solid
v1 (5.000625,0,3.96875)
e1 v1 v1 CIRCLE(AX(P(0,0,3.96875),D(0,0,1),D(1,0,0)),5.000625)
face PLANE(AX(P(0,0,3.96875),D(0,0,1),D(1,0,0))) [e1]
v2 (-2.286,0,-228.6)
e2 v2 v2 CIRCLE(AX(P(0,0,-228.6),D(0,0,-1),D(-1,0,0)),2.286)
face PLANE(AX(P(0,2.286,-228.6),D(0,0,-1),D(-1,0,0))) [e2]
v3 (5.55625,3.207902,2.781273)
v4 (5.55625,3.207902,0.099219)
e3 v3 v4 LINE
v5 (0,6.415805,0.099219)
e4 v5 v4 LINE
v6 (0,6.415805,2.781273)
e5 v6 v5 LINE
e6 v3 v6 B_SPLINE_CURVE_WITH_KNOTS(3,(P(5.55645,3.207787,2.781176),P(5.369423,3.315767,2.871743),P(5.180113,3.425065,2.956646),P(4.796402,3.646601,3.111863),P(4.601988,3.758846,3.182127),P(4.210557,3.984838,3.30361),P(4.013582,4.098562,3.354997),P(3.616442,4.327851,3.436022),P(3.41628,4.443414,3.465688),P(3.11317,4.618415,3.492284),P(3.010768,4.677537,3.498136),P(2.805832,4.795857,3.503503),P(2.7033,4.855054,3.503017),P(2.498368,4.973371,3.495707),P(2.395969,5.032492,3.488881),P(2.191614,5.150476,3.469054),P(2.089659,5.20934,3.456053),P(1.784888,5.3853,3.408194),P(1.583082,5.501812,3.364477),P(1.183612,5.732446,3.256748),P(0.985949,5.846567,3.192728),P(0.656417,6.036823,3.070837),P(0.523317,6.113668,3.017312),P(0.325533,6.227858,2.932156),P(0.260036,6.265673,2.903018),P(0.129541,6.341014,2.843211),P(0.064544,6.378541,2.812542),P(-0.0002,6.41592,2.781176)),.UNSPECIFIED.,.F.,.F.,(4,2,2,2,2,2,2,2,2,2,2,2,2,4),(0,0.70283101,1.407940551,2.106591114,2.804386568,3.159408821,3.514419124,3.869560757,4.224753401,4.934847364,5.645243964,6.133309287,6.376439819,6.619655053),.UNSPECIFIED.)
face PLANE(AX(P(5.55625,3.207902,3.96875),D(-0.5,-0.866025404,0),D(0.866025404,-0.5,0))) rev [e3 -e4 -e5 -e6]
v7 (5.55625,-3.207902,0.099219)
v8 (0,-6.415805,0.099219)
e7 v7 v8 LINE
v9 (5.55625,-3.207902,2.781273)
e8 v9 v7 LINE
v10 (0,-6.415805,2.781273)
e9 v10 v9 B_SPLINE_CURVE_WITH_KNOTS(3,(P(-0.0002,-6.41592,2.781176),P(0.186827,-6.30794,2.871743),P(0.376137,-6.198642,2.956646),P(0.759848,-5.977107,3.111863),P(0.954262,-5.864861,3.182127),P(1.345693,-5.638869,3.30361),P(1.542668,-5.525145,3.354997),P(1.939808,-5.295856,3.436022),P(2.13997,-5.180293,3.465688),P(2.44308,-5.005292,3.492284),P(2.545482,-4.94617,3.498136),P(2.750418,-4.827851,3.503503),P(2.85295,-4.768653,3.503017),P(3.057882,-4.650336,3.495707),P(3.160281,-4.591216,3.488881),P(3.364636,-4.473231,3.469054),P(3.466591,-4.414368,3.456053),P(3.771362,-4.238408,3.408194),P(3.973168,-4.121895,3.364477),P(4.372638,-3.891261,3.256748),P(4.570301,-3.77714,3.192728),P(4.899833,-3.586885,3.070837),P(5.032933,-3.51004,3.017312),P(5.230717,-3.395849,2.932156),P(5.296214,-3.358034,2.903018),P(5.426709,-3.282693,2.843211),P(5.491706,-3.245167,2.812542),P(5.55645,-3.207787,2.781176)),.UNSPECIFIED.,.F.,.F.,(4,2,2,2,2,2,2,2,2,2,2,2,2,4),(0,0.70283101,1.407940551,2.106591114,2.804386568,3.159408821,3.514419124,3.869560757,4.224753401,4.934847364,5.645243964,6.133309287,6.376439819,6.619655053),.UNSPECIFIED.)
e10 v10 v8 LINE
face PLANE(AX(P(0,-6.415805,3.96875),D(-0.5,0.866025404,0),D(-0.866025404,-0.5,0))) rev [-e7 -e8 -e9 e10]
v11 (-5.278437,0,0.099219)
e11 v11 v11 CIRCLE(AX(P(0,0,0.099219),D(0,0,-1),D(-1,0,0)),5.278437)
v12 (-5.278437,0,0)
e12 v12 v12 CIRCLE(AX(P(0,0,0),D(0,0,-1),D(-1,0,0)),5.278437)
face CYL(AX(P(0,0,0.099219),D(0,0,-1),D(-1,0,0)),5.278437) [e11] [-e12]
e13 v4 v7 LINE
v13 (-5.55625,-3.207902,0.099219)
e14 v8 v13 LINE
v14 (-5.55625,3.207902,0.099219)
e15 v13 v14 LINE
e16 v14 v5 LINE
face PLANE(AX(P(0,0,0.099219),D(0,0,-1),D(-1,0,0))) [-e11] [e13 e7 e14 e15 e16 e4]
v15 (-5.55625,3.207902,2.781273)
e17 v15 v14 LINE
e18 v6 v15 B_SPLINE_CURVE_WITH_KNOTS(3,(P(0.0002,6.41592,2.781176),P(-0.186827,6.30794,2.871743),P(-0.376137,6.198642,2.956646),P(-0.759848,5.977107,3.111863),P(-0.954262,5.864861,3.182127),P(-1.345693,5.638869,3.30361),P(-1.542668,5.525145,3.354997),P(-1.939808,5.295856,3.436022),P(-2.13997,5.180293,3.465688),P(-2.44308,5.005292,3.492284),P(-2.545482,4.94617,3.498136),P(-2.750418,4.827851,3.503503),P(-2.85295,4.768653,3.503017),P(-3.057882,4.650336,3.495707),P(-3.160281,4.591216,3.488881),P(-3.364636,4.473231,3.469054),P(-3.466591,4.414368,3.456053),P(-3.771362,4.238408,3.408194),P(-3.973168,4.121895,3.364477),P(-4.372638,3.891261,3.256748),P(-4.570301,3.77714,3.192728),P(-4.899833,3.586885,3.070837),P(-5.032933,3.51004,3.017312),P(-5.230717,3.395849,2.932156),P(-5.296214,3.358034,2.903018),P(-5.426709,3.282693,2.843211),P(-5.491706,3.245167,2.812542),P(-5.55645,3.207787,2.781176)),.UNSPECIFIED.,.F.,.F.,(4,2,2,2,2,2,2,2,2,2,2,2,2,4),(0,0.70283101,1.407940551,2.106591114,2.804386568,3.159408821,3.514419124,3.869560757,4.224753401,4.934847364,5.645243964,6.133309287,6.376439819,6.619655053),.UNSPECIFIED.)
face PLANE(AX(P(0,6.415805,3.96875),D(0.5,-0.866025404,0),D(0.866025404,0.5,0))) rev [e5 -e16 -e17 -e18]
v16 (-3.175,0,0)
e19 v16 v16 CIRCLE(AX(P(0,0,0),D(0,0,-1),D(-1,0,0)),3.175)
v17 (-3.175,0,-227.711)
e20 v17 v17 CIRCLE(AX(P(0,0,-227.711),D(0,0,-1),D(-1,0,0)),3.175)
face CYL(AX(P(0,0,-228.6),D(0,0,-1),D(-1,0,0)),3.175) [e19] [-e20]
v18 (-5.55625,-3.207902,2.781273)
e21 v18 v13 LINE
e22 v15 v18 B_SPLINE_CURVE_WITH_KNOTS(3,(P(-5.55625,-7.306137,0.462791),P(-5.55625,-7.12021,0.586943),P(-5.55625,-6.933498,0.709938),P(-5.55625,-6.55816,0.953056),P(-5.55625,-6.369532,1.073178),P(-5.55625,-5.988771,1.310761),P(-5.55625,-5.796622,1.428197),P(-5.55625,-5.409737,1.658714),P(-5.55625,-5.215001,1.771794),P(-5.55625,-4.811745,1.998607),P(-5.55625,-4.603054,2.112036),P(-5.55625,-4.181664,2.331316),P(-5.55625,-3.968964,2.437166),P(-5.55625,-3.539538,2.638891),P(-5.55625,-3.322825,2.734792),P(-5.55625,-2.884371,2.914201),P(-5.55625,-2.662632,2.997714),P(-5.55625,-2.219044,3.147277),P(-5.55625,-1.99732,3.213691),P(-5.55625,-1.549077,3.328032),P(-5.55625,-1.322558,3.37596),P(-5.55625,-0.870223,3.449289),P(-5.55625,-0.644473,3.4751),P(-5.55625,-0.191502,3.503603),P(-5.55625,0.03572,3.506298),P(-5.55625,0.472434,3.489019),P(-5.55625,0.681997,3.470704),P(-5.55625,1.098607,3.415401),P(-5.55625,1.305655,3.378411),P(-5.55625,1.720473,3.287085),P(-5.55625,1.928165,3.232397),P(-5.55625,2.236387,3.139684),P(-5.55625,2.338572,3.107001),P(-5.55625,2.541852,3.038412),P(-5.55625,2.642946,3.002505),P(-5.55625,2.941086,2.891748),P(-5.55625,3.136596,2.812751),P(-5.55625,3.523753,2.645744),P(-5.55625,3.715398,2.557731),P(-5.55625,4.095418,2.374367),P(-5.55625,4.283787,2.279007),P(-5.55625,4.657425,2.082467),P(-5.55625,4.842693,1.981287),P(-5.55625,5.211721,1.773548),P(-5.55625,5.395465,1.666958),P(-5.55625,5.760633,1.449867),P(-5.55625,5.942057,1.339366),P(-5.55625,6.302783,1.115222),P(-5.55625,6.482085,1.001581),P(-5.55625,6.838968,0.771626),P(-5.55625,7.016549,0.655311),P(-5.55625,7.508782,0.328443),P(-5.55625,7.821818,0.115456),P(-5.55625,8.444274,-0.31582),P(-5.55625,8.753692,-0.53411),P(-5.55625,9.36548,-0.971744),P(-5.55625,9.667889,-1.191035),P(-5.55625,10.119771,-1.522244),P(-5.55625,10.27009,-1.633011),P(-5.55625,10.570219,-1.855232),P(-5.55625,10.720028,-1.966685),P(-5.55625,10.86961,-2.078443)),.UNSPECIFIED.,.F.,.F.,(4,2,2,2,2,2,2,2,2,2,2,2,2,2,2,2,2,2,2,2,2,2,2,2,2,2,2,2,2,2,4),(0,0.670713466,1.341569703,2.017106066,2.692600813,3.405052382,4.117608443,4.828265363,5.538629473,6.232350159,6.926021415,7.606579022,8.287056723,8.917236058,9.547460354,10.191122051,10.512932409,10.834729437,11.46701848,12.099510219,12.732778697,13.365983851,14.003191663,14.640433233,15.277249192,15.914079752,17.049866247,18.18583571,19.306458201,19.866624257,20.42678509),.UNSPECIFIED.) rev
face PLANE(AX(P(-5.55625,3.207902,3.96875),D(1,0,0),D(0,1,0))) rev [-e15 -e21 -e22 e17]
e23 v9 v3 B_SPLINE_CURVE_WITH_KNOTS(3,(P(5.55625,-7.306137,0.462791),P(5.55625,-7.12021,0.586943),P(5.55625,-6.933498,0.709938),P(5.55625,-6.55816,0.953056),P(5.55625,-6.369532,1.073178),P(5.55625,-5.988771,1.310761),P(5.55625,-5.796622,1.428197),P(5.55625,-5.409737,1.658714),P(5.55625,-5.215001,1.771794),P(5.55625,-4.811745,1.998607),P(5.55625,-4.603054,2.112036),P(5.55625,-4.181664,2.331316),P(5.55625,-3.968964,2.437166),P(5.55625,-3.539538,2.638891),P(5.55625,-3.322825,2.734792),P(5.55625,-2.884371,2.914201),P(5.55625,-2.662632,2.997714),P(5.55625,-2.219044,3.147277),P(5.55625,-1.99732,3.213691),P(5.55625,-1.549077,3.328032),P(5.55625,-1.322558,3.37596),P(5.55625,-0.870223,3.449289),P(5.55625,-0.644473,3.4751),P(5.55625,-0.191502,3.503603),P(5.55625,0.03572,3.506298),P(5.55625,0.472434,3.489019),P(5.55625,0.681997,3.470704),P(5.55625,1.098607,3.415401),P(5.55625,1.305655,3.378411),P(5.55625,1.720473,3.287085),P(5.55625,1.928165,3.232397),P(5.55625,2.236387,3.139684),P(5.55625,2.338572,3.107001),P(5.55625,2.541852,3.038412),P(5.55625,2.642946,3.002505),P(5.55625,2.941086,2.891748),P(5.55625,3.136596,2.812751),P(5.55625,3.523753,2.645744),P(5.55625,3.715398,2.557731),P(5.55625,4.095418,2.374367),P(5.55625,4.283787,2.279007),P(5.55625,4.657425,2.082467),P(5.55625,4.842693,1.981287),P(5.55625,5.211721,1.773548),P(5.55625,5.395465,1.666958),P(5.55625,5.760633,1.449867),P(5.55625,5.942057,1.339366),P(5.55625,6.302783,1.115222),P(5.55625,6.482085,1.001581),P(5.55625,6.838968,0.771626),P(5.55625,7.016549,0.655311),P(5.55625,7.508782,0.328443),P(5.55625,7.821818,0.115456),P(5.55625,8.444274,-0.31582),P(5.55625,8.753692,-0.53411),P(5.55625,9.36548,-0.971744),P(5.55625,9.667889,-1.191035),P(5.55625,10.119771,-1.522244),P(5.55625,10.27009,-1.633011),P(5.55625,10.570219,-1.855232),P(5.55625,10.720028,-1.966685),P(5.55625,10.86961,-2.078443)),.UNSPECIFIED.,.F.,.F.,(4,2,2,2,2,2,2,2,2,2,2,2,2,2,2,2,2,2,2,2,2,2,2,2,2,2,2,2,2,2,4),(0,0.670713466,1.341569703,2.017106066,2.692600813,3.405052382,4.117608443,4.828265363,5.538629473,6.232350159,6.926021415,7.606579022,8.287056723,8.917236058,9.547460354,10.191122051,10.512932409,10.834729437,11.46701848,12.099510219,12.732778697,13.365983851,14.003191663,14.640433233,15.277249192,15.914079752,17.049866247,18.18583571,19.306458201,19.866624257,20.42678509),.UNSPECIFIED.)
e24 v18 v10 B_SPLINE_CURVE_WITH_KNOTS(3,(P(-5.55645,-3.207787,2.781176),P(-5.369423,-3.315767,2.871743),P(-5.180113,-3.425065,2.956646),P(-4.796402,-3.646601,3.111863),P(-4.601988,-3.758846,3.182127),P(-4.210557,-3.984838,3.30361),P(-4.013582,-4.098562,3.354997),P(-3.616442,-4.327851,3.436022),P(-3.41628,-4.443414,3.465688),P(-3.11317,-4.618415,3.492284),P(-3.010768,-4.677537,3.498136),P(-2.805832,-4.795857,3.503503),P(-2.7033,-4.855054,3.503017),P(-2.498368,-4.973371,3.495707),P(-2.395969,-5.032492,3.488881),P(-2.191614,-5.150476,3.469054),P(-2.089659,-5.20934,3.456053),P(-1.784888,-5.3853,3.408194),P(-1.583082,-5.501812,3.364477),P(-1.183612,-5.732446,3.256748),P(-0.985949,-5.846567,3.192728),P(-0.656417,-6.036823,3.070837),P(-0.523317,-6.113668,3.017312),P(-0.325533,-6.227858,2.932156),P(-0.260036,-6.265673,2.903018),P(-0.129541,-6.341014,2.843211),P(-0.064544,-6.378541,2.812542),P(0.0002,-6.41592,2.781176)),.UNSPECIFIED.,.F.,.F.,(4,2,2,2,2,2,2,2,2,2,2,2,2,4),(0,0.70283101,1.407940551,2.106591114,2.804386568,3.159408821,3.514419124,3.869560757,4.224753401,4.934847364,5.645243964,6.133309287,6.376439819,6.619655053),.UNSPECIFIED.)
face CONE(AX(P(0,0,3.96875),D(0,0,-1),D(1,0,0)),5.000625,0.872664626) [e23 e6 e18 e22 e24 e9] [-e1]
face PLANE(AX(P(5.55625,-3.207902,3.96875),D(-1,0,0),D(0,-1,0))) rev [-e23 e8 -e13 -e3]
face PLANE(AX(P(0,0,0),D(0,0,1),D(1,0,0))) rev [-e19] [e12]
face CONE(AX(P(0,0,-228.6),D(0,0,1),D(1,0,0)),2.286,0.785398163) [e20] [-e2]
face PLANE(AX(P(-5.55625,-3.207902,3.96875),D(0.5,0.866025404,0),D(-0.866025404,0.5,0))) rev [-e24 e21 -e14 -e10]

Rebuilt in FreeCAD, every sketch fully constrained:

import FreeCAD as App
import Part
import Sketcher

V = App.Vector
Q = App.Units.Quantity


def faces_at(feature, points):
    """Names of the faces that lie closest to the given points."""
    faces = feature.Shape.Faces
    near = lambda p: min(range(len(faces)), key=lambda i: faces[i].distToShape(Part.Vertex(*p))[0])
    return sorted({f"Face{near(p) + 1}" for p in points})

doc = App.newDocument("Part")
body = doc.addObject("PartDesign::Body", "Body")

sketch1 = body.newObject("Sketcher::SketchObject", "Sketch")
sketch1.AttachmentSupport = (doc.getObject("YZ_Plane"), [""])
sketch1.MapMode = "FlatFace"
sketch1.addGeometry(Part.LineSegment(V(0, 0, 0), V(0, -228.6, 0)), False)
sketch1.addGeometry(Part.LineSegment(V(0, -228.6, 0), V(2.286, -228.6, 0)), False)
sketch1.addGeometry(Part.LineSegment(V(2.286, -228.6, 0), V(3.175, -227.711, 0)), False)
sketch1.addGeometry(Part.LineSegment(V(3.175, -227.711, 0), V(3.175, 0, 0)), False)
sketch1.addGeometry(Part.LineSegment(V(3.175, 0, 0), V(0, 0, 0)), False)
sketch1.addConstraint(Sketcher.Constraint("Coincident", 0, 2, 1, 1))
sketch1.addConstraint(Sketcher.Constraint("Coincident", 1, 2, 2, 1))
sketch1.addConstraint(Sketcher.Constraint("Coincident", 2, 2, 3, 1))
sketch1.addConstraint(Sketcher.Constraint("Coincident", 3, 2, 4, 1))
sketch1.addConstraint(Sketcher.Constraint("Coincident", 4, 2, 0, 1))
sketch1.addConstraint(Sketcher.Constraint("Vertical", 0))
sketch1.addConstraint(Sketcher.Constraint("Horizontal", 1))
sketch1.addConstraint(Sketcher.Constraint("Vertical", 3))
sketch1.addConstraint(Sketcher.Constraint("Horizontal", 4))
sketch1.addConstraint(Sketcher.Constraint("Coincident", 4, 2, -1, 1))
sketch1.addConstraint(Sketcher.Constraint("DistanceY", 0, 2, 0, 1, Q("9 in")))
sketch1.addConstraint(Sketcher.Constraint("Angle", 2, Q("45 deg")))
sketch1.addConstraint(Sketcher.Constraint("DistanceX", 1, 1, 1, 2, Q("0.09 in")))
sketch1.addConstraint(Sketcher.Constraint("DistanceX", 4, 2, 4, 1, Q("0.125 in")))
revolution = body.newObject("PartDesign::Revolution", "Revolution")
revolution.Profile = sketch1
revolution.ReferenceAxis = (sketch1, ["V_Axis"])
revolution.Angle = 360

sketch2 = body.newObject("Sketcher::SketchObject", "Sketch001")
sketch2.AttachmentSupport = (doc.getObject("XY_Plane"), [""])
sketch2.MapMode = "FlatFace"
sketch2.addGeometry(Part.LineSegment(V(0, 6.415805, 0), V(-5.55625, 3.207902, 0)), False)
sketch2.addGeometry(Part.LineSegment(V(-5.55625, 3.207902, 0), V(-5.55625, -3.207902, 0)), False)
sketch2.addGeometry(Part.LineSegment(V(-5.55625, -3.207902, 0), V(0, -6.415805, 0)), False)
sketch2.addGeometry(Part.LineSegment(V(0, -6.415805, 0), V(5.55625, -3.207902, 0)), False)
sketch2.addGeometry(Part.LineSegment(V(5.55625, -3.207902, 0), V(5.55625, 3.207902, 0)), False)
sketch2.addGeometry(Part.LineSegment(V(5.55625, 3.207902, 0), V(0, 6.415805, 0)), False)
sketch2.addConstraint(Sketcher.Constraint("Coincident", 0, 2, 1, 1))
sketch2.addConstraint(Sketcher.Constraint("Coincident", 1, 2, 2, 1))
sketch2.addConstraint(Sketcher.Constraint("Coincident", 2, 2, 3, 1))
sketch2.addConstraint(Sketcher.Constraint("Coincident", 3, 2, 4, 1))
sketch2.addConstraint(Sketcher.Constraint("Coincident", 4, 2, 5, 1))
sketch2.addConstraint(Sketcher.Constraint("Coincident", 5, 2, 0, 1))
sketch2.addConstraint(Sketcher.Constraint("Vertical", 1))
sketch2.addConstraint(Sketcher.Constraint("Vertical", 4))
sketch2.addConstraint(Sketcher.Constraint("Symmetric", 0, 2, 3, 2, -1, 1))
sketch2.addConstraint(Sketcher.Constraint("Symmetric", 2, 2, 5, 2, -1, 1))
sketch2.addConstraint(Sketcher.Constraint("PointOnObject", 2, 2, -2))
sketch2.addConstraint(Sketcher.Constraint("Parallel", 2, 5))
sketch2.addConstraint(Sketcher.Constraint("Horizontal", 1, 2, 3, 2))
sketch2.addConstraint(Sketcher.Constraint("Angle", 0, Q("-150 deg")))
sketch2.addConstraint(Sketcher.Constraint("DistanceX", 0, 2, -1, 1, Q("0.21875 in")))
sketch2.addConstraint(Sketcher.Constraint("DistanceY", 1, 2, 1, 1, 6.415805))
pad1 = body.newObject("PartDesign::Pad", "Pad")
pad1.Profile = sketch2
pad1.Length = Q("0.15625 in")
body2 = doc.addObject("PartDesign::Body", "Body001")

sketch3 = body2.newObject("Sketcher::SketchObject", "Sketch002")
sketch3.AttachmentSupport = (doc.getObject("XY_Plane001"), [""])
sketch3.MapMode = "FlatFace"
sketch3.AttachmentOffset = App.Placement(V(0, 0, 0.15625 * 25.4), App.Rotation())
sketch3.addGeometry(Part.LineSegment(V(-308.416, 309.276, 0), V(-308.416, -309.276, 0)), False)
sketch3.addGeometry(Part.LineSegment(V(-308.416, -309.276, 0), V(308.416, -309.276, 0)), False)
sketch3.addGeometry(Part.LineSegment(V(308.416, -309.276, 0), V(308.416, 309.276, 0)), False)
sketch3.addGeometry(Part.LineSegment(V(308.416, 309.276, 0), V(-308.416, 309.276, 0)), False)
sketch3.addGeometry(Part.Circle(V(0, 0, 0), V(0, 0, 1), 5.000625), False)
sketch3.addConstraint(Sketcher.Constraint("Coincident", 0, 2, 1, 1))
sketch3.addConstraint(Sketcher.Constraint("Coincident", 1, 2, 2, 1))
sketch3.addConstraint(Sketcher.Constraint("Coincident", 2, 2, 3, 1))
sketch3.addConstraint(Sketcher.Constraint("Coincident", 3, 2, 0, 1))
sketch3.addConstraint(Sketcher.Constraint("Vertical", 0))
sketch3.addConstraint(Sketcher.Constraint("Horizontal", 1))
sketch3.addConstraint(Sketcher.Constraint("Vertical", 2))
sketch3.addConstraint(Sketcher.Constraint("Horizontal", 3))
sketch3.addConstraint(Sketcher.Constraint("Coincident", 4, 3, -1, 1))
sketch3.addConstraint(Sketcher.Constraint("Symmetric", 0, 2, 2, 2, -1, 1))
sketch3.addConstraint(Sketcher.Constraint("Diameter", 4, 10.00125))
sketch3.addConstraint(Sketcher.Constraint("DistanceX", 1, 1, 1, 2, 616.832))
sketch3.addConstraint(Sketcher.Constraint("DistanceY", 0, 2, 0, 1, 618.552))
pad2 = body2.newObject("PartDesign::Pad", "Pad001")
pad2.Profile = sketch3
pad2.Length = 233.723566
pad2.Reversed = True
doc.recompute()

datumplane = body2.newObject("PartDesign::Plane", "DatumPlane")
datumplane.AttachmentSupport = (doc.getObject("XY_Plane001"), [""])
datumplane.MapMode = "FlatFace"
datumplane.AttachmentOffset = App.Placement(V(0, 0, 0.15625 * 25.4), App.Rotation())
draft = body2.newObject("PartDesign::Draft", "Draft")
draft.Base = (pad2, faces_at(pad2, [
    (0, -309.276, -112.893),
    (308.416, 0, -112.893),
    (0, 309.276, -112.893),
    (-308.416, 0, -112.893),
    (-5.001, 0, -112.893),
]))
draft.NeutralPlane = (datumplane, [""])
draft.Angle = 50
draft.Reversed = True
doc.recompute()

boolean = body.newObject("PartDesign::Boolean", "Boolean")
boolean.Type = "Cut"
boolean.addObjects([body2])

sketch4 = body.newObject("Sketcher::SketchObject", "Sketch003")
sketch4.AttachmentSupport = (doc.getObject("XY_Plane"), [""])
sketch4.MapMode = "FlatFace"
sketch4.addGeometry(Part.Circle(V(0, 0, 0), V(0, 0, 1), 6.415805), False)
sketch4.addGeometry(Part.Circle(V(0, 0, 0), V(0, 0, 1), 5.278437), False)
sketch4.addConstraint(Sketcher.Constraint("Coincident", 0, 3, -1, 1))
sketch4.addConstraint(Sketcher.Constraint("Coincident", 1, 3, -1, 1))
sketch4.addConstraint(Sketcher.Constraint("Diameter", 0, 12.83161))
sketch4.addConstraint(Sketcher.Constraint("Diameter", 1, 10.556875))
pocket1 = body.newObject("PartDesign::Pocket", "Pocket")
pocket1.Profile = sketch4
pocket1.Length = 0.099219
pocket1.Reversed = True

doc.recompute()
